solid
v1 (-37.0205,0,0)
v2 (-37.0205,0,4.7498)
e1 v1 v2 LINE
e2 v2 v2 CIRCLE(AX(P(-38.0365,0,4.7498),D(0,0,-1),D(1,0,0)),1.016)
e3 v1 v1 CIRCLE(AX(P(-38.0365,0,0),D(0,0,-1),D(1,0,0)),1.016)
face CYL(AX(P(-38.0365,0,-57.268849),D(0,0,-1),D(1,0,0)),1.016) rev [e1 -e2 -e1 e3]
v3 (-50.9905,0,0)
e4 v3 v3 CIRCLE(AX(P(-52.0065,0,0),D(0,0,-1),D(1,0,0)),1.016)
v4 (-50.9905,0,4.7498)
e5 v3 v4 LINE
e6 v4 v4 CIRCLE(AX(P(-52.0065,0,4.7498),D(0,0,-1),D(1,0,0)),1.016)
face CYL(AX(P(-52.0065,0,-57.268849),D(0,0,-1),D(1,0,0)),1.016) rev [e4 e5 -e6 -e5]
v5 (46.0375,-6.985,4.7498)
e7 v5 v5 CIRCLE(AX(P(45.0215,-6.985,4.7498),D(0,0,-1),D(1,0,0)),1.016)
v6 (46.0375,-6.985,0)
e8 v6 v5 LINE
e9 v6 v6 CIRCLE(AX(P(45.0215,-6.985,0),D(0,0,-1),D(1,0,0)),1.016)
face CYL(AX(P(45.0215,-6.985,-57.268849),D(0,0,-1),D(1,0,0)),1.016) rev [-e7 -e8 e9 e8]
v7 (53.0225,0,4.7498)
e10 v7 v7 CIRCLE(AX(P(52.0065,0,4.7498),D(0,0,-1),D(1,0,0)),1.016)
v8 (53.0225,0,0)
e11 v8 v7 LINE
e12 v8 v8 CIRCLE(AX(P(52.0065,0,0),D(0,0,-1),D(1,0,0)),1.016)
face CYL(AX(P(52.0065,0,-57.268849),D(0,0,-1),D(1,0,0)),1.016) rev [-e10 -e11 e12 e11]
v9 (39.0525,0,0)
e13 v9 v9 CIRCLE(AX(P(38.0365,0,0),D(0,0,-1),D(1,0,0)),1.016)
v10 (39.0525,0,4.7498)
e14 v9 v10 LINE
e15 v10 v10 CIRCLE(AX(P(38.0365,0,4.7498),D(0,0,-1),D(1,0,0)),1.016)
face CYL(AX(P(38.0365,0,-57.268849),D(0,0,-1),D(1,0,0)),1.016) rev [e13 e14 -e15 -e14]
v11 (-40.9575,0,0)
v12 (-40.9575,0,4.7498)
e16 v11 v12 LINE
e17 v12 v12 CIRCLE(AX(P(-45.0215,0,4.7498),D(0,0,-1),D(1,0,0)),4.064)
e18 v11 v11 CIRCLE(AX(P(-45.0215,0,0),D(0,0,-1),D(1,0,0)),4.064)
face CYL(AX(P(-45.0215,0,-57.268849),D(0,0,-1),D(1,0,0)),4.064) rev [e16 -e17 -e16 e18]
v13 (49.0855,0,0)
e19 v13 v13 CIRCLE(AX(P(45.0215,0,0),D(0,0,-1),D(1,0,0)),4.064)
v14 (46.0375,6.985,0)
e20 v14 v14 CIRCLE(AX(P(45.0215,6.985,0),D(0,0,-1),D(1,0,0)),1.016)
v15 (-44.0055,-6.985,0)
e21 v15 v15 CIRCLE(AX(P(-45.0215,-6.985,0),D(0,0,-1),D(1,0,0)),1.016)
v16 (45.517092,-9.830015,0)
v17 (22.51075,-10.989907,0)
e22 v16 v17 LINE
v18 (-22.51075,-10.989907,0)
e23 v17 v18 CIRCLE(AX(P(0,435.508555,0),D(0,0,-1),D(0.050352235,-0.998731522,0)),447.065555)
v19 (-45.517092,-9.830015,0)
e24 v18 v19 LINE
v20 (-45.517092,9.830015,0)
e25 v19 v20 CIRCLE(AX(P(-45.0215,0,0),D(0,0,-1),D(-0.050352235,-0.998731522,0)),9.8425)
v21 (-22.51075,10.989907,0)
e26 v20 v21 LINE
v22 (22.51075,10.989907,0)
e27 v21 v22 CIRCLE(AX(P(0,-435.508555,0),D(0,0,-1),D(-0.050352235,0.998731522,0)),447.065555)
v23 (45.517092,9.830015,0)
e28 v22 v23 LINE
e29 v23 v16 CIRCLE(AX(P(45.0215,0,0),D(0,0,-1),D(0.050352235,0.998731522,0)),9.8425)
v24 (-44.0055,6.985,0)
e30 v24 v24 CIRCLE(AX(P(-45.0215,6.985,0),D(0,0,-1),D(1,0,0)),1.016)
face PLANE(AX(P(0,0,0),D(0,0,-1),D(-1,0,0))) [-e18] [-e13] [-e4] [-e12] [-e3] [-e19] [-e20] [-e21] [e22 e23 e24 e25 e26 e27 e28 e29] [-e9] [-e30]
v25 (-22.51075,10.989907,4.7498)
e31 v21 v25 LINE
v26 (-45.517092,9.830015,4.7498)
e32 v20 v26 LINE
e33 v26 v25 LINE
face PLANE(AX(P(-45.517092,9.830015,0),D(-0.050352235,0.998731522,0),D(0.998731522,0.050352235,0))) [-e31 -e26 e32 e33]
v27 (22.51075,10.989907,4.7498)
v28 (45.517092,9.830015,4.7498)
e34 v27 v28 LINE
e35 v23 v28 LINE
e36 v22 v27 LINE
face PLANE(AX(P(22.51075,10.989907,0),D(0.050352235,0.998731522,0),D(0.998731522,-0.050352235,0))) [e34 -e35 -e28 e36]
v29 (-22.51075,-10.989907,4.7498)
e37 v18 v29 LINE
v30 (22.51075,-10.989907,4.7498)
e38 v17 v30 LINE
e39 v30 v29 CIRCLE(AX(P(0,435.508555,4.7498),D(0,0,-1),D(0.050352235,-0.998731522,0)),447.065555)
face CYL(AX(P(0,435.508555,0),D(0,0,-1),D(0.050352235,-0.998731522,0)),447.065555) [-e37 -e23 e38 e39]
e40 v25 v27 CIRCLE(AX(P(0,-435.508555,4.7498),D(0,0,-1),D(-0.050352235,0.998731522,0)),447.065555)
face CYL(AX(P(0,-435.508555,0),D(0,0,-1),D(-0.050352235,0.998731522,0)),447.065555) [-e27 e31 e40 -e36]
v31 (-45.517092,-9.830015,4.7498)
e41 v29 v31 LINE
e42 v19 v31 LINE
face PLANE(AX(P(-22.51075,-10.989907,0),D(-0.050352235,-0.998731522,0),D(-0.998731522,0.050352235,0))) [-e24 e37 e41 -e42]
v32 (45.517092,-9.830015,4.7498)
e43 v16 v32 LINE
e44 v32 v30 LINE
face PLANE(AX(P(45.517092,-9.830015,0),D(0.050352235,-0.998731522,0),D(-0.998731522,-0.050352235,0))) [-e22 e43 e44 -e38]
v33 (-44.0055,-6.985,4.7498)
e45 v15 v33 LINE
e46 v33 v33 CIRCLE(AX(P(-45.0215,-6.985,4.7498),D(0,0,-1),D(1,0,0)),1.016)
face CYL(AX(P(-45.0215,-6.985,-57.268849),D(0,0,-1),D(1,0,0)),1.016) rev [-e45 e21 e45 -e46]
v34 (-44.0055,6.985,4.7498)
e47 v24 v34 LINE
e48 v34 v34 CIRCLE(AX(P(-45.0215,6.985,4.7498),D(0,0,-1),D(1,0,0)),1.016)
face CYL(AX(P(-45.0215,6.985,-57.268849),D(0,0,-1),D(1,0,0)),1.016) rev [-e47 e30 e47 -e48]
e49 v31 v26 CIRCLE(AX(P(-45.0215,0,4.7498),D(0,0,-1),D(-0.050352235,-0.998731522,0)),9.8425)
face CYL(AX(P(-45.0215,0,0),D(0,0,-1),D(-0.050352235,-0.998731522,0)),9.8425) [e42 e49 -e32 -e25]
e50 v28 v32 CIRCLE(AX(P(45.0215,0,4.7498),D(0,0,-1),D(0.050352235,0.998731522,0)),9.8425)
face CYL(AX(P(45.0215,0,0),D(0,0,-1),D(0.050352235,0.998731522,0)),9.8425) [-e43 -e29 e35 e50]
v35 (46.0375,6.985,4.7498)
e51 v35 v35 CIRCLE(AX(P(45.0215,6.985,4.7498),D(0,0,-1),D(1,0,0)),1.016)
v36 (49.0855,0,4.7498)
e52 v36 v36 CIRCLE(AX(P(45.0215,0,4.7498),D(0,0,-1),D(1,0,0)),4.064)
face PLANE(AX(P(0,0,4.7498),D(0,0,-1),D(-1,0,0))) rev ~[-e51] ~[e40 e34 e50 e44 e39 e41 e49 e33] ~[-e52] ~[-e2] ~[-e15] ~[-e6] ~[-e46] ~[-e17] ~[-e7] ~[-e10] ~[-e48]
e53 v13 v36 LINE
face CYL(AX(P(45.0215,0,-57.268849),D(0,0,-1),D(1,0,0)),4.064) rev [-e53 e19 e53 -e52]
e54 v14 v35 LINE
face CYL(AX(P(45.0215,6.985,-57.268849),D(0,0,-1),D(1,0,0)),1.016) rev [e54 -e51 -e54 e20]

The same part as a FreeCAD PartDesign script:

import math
import FreeCAD as App
import Part
import Sketcher
from FreeCAD import Vector
Q = App.Units.Quantity

doc = App.newDocument("Part")
params = doc.addObject("Spreadsheet::Sheet", "Params")
for row, (alias, value) in enumerate([
    ("pad1_length", "0.187 in"),
    ("sketch2_diameter", "0.32 in"),
    ("sketch2_diameter2", "0.08 in"),
], start=1):
    params.set(f"A{row}", alias)
    params.set(f"B{row}", "=" + value)
    params.setAlias(f"B{row}", alias)

body = doc.addObject("PartDesign::Body", "Body")

# Sketch on XY plane
sketch1 = body.newObject("Sketcher::SketchObject", "Sketch")
sketch1.AttachmentSupport = (doc.getObject("XY_Plane"), [""])
sketch1.MapMode = "FlatFace"
sketch1.addGeometry([
    Part.LineSegment(Vector(-23, 11, 0), Vector(-46, 10, 0)),  # 0
    Part.ArcOfCircle(Part.Circle(Vector(-45, 0, 0), Vector(0, 0, 1), 10), math.radians(93), math.radians(267)),  # 1
    Part.LineSegment(Vector(-46, -10, 0), Vector(-23, -11, 0)),  # 2
    Part.ArcOfCircle(Part.Circle(Vector(0, 436, 0), Vector(0, 0, 1), 447), math.radians(-92.89), math.radians(-87.11)),  # 3
    Part.LineSegment(Vector(23, -11, 0), Vector(46, -10, 0)),  # 4
    Part.ArcOfCircle(Part.Circle(Vector(45, 0, 0), Vector(0, 0, 1), 10), math.radians(-87), math.radians(87)),  # 5
    Part.LineSegment(Vector(46, 10, 0), Vector(23, 11, 0)),  # 6
    Part.ArcOfCircle(Part.Circle(Vector(0, -436, 0), Vector(0, 0, 1), 447), math.radians(87.11), math.radians(92.89)),  # 7
], False)
sketch1.addConstraint([
    Sketcher.Constraint("Tangent", 0, 2, 1, 1),
    Sketcher.Constraint("Tangent", 1, 2, 2, 1),
    Sketcher.Constraint("Tangent", 2, 2, 3, 1),
    Sketcher.Constraint("Tangent", 3, 2, 4, 1),
    Sketcher.Constraint("Tangent", 4, 2, 5, 1),
    Sketcher.Constraint("Tangent", 5, 2, 6, 1),
    Sketcher.Constraint("Tangent", 6, 2, 7, 1),
    Sketcher.Constraint("Tangent", 7, 2, 0, 1),
    Sketcher.Constraint("Equal", 1, 5),
    Sketcher.Constraint("Equal", 3, 7),
    Sketcher.Constraint("Symmetric", 1, 3, 5, 3, -1, 1),
    Sketcher.Constraint("Symmetric", 3, 3, 7, 3, -1, 1),
    Sketcher.Constraint("Symmetric", 2, 2, 3, 2, -2),
    Sketcher.Constraint("Radius", 1, Q("0.3875 in")),
    Sketcher.Constraint("DistanceX", 1, 3, 5, 3, Q("3.545 in")),
    Sketcher.Constraint("Radius", 3, Q("447.065555 mm")),
    Sketcher.Constraint("DistanceX", 2, 2, 3, 2, Q("1.7725 in")),
])
pad1 = body.newObject("PartDesign::Pad", "Pad")
pad1.Profile = sketch1
pad1.setExpression("Length", "Params.pad1_length")

# Sketch on XY plane
sketch2 = body.newObject("Sketcher::SketchObject", "Sketch001")
sketch2.AttachmentSupport = (doc.getObject("XY_Plane"), [""])
sketch2.MapMode = "FlatFace"
sketch2.addGeometry([
    Part.Circle(Vector(-45, 0, 0), Vector(0, 0, 1), 4.1),  # 0
    Part.Circle(Vector(-45, 7, 0), Vector(0, 0, 1), 1),  # 1
    Part.Circle(Vector(-52, 0, 0), Vector(0, 0, 1), 1),  # 2
    Part.Circle(Vector(-38, 0, 0), Vector(0, 0, 1), 1),  # 3
    Part.Circle(Vector(-45, -7, 0), Vector(0, 0, 1), 1),  # 4
    Part.Circle(Vector(45, 0, 0), Vector(0, 0, 1), 4.1),  # 5
    Part.Circle(Vector(45, 7, 0), Vector(0, 0, 1), 1),  # 6
    Part.Circle(Vector(52, 0, 0), Vector(0, 0, 1), 1),  # 7
    Part.Circle(Vector(45, -7, 0), Vector(0, 0, 1), 1),  # 8
    Part.Circle(Vector(38, 0, 0), Vector(0, 0, 1), 1),  # 9
], False)
sketch2.addConstraint([
    Sketcher.Constraint("Equal", 1, 2),
    Sketcher.Constraint("Equal", 2, 3),
    Sketcher.Constraint("Equal", 3, 4),
    Sketcher.Constraint("Equal", 0, 5),
    Sketcher.Constraint("Equal", 4, 6),
    Sketcher.Constraint("Equal", 6, 7),
    Sketcher.Constraint("Equal", 7, 8),
    Sketcher.Constraint("Equal", 8, 9),
    Sketcher.Constraint("Symmetric", 0, 3, 5, 3, -1, 1),
    Sketcher.Constraint("Symmetric", 4, 3, 6, 3, -1, 1),
    Sketcher.Constraint("Symmetric", 2, 3, 7, 3, -1, 1),
    Sketcher.Constraint("Symmetric", 1, 3, 8, 3, -1, 1),
    Sketcher.Constraint("Symmetric", 3, 3, 9, 3, -1, 1),
    Sketcher.Constraint("Symmetric", 1, 3, 6, 3, -2),
    Sketcher.Constraint("PointOnObject", 0, 3, -1),
    Sketcher.Constraint("PointOnObject", 2, 3, -1),
    Sketcher.Constraint("PointOnObject", 3, 3, -1),
    Sketcher.Constraint("Vertical", 0, 3, 1, 3),
    Sketcher.Constraint("Diameter", 0, Q("0.32 in")),
    Sketcher.Constraint("Diameter", 1, Q("0.08 in")),
    Sketcher.Constraint("DistanceX", 2, 3, 3, 3, Q("0.55 in")),
    Sketcher.Constraint("DistanceY", 4, 3, 1, 3, Q("0.55 in")),
    Sketcher.Constraint("DistanceX", 3, 3, 5, 3, Q("3.27 in")),
    Sketcher.Constraint("DistanceX", 2, 3, 0, 3, Q("0.275 in")),
])
sketch2.setExpression("Constraints[18]", "Params.sketch2_diameter")
sketch2.setExpression("Constraints[19]", "Params.sketch2_diameter2")
pocket1 = body.newObject("PartDesign::Pocket", "Pocket")
pocket1.Profile = sketch2
pocket1.Type = "ThroughAll"
pocket1.Midplane = True

doc.recompute()
